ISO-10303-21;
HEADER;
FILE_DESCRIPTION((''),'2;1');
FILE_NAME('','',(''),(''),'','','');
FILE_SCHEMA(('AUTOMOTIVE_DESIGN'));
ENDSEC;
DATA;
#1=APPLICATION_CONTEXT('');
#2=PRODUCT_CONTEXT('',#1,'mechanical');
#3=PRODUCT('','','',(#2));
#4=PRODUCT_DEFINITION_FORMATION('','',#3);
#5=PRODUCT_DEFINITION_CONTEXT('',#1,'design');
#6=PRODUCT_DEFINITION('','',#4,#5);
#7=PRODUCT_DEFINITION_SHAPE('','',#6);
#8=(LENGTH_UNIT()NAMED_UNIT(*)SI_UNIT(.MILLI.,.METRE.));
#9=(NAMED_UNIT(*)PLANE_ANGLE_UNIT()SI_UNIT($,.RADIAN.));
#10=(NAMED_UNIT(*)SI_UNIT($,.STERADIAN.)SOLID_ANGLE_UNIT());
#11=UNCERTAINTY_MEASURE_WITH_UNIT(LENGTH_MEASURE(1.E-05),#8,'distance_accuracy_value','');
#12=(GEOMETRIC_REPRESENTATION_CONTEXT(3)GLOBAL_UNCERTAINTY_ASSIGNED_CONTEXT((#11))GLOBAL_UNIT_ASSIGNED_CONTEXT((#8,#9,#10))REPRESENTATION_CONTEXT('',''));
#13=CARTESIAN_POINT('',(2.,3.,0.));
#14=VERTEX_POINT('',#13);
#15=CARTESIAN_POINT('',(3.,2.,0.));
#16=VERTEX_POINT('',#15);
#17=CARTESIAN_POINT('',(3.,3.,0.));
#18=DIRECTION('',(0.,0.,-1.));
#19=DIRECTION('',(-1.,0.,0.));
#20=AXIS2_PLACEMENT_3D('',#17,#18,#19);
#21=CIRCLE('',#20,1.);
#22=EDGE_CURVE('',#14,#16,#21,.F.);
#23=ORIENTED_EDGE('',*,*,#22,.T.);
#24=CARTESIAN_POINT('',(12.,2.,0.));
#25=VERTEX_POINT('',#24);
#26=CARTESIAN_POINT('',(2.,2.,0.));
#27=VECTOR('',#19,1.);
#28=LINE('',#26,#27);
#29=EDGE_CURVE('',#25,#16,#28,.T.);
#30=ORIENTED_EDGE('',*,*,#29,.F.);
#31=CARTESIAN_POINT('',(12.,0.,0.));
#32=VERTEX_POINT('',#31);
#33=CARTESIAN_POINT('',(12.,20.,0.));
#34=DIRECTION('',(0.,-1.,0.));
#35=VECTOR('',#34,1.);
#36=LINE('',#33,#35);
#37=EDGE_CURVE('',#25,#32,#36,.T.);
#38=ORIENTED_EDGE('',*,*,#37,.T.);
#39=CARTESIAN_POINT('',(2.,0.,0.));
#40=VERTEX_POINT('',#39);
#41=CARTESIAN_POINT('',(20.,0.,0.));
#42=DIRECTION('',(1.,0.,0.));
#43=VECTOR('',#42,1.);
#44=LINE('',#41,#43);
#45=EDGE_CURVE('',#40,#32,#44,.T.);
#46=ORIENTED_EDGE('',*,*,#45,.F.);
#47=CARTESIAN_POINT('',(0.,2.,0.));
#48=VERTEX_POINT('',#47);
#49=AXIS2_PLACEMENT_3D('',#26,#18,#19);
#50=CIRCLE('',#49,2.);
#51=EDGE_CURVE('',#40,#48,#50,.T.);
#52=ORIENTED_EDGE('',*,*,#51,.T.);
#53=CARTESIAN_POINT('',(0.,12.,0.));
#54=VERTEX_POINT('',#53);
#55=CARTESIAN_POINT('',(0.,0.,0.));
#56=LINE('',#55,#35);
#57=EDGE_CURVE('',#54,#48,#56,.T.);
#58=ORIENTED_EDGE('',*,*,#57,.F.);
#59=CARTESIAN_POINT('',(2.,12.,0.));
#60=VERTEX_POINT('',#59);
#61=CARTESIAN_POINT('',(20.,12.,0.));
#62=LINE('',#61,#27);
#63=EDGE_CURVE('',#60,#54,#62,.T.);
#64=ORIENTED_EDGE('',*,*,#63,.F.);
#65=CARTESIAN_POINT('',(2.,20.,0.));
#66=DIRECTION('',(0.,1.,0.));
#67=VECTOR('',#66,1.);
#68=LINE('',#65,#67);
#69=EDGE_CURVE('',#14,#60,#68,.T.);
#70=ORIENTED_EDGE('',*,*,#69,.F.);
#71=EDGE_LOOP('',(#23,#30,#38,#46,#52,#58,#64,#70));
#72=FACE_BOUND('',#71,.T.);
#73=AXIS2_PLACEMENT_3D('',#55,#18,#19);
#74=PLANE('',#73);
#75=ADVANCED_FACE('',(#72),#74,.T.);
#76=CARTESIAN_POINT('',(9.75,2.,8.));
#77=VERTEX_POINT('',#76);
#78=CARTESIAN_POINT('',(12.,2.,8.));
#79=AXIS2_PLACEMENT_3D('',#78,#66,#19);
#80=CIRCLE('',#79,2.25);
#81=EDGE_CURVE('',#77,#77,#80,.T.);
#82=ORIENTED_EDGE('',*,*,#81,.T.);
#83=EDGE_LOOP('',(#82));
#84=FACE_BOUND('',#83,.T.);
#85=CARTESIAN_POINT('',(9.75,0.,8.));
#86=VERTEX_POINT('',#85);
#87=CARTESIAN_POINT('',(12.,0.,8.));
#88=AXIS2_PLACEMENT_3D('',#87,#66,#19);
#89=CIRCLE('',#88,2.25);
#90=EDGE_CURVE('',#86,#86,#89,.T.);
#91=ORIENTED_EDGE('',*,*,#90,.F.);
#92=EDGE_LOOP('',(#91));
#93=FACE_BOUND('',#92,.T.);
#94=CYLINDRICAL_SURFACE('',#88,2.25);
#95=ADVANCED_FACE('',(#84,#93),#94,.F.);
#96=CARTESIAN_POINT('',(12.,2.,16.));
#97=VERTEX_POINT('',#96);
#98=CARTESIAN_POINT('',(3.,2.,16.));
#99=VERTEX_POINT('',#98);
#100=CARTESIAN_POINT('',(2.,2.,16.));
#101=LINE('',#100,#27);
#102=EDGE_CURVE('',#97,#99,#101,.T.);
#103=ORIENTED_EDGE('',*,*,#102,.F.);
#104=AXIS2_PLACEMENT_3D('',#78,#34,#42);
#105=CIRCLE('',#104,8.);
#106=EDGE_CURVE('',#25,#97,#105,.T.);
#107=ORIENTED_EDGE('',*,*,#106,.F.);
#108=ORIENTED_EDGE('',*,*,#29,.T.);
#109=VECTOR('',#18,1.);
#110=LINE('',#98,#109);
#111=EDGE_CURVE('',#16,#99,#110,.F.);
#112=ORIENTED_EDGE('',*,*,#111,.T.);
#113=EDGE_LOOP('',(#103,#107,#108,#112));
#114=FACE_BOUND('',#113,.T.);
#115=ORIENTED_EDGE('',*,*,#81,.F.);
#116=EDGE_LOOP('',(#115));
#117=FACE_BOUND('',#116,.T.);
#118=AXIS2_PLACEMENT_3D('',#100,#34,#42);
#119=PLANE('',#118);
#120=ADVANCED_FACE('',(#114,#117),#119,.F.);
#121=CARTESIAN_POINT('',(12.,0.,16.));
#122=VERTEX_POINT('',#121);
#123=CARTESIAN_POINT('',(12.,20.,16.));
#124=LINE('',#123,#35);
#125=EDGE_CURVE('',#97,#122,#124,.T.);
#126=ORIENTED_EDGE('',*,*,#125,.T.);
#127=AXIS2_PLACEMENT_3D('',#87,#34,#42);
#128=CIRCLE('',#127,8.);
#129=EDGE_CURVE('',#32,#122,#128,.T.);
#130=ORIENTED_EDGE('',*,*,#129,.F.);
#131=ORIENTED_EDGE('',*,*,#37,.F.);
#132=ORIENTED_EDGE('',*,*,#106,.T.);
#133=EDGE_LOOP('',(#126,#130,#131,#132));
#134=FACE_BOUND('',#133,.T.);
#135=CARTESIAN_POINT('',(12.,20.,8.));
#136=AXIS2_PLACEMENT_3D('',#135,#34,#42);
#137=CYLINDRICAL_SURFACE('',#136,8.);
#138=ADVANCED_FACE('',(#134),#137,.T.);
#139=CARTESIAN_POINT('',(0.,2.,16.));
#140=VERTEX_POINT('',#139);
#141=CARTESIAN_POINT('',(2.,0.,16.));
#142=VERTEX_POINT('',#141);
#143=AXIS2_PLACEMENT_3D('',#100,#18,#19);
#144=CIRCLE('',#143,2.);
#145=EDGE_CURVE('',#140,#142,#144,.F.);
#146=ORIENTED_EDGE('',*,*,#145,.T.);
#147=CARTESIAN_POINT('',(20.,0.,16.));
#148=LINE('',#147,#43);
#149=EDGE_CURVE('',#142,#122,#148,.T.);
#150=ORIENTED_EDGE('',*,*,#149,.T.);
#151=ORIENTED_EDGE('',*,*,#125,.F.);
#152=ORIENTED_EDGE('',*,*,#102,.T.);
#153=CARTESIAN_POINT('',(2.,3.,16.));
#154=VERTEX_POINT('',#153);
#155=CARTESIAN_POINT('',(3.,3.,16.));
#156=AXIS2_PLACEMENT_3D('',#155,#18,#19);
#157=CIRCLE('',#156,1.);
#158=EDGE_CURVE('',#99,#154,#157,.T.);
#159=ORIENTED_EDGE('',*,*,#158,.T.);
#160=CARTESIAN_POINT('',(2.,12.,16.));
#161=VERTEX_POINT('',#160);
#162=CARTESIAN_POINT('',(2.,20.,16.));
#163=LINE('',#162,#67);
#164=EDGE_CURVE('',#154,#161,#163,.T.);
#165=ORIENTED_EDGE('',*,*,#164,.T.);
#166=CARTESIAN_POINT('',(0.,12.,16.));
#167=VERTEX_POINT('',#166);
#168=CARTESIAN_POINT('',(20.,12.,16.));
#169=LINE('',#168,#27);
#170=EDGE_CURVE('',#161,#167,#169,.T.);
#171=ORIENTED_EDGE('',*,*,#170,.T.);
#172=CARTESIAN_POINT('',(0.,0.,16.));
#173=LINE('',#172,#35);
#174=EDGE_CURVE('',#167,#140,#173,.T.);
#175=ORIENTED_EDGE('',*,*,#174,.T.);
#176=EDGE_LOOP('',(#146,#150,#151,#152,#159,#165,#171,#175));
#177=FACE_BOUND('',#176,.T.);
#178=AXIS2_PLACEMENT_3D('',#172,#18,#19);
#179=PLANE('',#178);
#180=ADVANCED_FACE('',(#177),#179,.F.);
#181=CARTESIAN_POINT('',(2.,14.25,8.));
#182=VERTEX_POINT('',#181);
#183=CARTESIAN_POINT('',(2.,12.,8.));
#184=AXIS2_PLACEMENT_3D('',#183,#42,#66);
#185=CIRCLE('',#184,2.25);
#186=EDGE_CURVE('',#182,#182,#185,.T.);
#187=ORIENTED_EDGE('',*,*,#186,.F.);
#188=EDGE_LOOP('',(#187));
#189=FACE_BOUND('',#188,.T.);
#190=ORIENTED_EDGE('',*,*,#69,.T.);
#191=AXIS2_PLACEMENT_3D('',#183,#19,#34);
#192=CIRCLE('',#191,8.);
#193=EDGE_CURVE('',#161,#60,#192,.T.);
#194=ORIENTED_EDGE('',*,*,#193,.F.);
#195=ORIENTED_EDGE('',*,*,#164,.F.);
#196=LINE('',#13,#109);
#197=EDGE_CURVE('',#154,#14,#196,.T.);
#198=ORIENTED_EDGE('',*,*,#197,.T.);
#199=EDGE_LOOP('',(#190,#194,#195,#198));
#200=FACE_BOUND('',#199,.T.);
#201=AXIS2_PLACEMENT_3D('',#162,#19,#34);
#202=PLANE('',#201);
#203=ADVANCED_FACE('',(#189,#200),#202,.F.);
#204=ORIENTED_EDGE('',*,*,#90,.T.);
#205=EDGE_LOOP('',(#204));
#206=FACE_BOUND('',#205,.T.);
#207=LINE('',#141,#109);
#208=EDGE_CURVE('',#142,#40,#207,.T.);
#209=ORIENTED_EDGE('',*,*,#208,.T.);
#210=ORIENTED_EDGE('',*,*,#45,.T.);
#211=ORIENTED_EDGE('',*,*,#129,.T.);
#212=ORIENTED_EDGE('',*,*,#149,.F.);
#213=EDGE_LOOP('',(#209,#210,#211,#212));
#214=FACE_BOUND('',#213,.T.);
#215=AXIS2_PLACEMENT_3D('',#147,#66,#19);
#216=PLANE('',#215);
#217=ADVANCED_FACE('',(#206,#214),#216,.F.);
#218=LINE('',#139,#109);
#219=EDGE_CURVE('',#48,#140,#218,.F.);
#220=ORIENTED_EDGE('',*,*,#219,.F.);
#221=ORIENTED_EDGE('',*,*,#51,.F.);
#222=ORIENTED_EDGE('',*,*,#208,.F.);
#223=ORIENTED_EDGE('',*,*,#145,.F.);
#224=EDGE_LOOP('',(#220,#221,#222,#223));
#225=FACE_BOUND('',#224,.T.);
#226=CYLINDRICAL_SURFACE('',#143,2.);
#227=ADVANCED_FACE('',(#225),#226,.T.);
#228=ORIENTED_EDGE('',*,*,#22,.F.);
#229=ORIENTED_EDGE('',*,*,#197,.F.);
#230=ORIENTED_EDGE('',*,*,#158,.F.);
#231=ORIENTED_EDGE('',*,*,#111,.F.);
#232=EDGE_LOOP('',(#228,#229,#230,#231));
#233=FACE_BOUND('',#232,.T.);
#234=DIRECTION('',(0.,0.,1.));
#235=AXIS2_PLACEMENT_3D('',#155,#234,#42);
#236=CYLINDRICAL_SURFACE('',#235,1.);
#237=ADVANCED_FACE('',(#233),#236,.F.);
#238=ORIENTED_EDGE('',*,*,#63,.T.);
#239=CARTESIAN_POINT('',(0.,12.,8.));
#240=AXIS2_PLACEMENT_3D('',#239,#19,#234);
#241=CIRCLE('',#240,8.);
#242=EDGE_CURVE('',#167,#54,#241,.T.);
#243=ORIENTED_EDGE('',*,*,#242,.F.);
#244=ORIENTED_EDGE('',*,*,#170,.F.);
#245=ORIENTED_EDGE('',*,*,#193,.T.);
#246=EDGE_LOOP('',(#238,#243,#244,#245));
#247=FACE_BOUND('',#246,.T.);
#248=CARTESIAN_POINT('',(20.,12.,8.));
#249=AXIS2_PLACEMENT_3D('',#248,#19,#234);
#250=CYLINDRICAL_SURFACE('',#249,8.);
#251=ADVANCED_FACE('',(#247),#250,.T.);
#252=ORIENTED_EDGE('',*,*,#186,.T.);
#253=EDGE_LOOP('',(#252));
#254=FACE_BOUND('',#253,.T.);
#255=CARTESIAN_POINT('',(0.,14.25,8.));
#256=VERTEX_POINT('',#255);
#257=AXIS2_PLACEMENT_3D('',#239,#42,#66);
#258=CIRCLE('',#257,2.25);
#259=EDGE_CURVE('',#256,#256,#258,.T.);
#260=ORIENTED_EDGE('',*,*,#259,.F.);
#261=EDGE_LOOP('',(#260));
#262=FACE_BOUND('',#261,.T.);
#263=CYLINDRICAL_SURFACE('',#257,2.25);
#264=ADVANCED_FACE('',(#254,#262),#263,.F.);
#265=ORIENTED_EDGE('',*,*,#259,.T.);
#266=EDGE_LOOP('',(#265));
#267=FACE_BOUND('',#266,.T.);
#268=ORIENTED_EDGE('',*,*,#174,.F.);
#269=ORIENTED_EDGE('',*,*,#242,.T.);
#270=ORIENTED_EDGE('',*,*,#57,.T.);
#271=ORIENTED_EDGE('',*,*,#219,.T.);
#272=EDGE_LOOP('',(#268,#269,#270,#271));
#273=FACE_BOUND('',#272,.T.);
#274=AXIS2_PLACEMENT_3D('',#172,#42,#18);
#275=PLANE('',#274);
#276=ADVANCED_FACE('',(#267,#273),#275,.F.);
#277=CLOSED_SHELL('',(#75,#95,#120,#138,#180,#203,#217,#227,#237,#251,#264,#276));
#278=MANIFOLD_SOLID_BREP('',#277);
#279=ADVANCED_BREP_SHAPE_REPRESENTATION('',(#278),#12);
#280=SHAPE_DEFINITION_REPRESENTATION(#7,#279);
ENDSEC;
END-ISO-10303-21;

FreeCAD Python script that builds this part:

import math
import FreeCAD as App
import Part
import Sketcher
from FreeCAD import Vector


def edges_at(feature, points):
    """Names of the edges that pass closest to the given points."""
    edges = feature.Shape.Edges
    near = lambda p: min(range(len(edges)), key=lambda i: edges[i].distToShape(Part.Vertex(*p))[0])
    return sorted({f"Edge{near(p) + 1}" for p in points})


def add_polygon(sketch, points):
    """Adds a closed chain of lines whose ends are joined by coincident constraints."""
    first, n = sketch.GeometryCount, len(points)
    for a, b in zip(points, points[1:] + points[:1]):
        sketch.addGeometry(Part.LineSegment(App.Vector(*a, 0), App.Vector(*b, 0)), False)
    for i in range(n):
        sketch.addConstraint(Sketcher.Constraint("Coincident", first + i, 2, first + (i + 1) % n, 1))

doc = App.newDocument("Part")
body = doc.addObject("PartDesign::Body", "Body")

# Sketch on XY plane
sketch1 = body.newObject("Sketcher::SketchObject", "Sketch")
sketch1.AttachmentSupport = (doc.getObject("XY_Plane"), [""])
sketch1.MapMode = "FlatFace"
add_polygon(sketch1, [(0, 20), (0, 0), (20, 0), (20, 2), (2, 2), (2, 20)])  # lines 0-5
sketch1.addConstraint(Sketcher.Constraint("Vertical", 0))
sketch1.addConstraint(Sketcher.Constraint("Horizontal", 1))
sketch1.addConstraint(Sketcher.Constraint("Vertical", 2))
sketch1.addConstraint(Sketcher.Constraint("Horizontal", 3))
sketch1.addConstraint(Sketcher.Constraint("Vertical", 4))
sketch1.addConstraint(Sketcher.Constraint("Horizontal", 5))
sketch1.addConstraint(Sketcher.Constraint("Coincident", 0, 2, -1, 1))
sketch1.addConstraint(Sketcher.Constraint("Equal", 1, 0))
sketch1.addConstraint(Sketcher.Constraint("Equal", 5, 2))
sketch1.addConstraint(Sketcher.Constraint("DistanceX", 1, 1, 1, 2, 20.0))
sketch1.addConstraint(Sketcher.Constraint("DistanceX", 3, 2, 3, 1, 18.0))
pad1 = body.newObject("PartDesign::Pad", "Pad")
pad1.Profile = sketch1
pad1.Length = 16

# Sketch on XZ plane
sketch2 = body.newObject("Sketcher::SketchObject", "Sketch001")
sketch2.AttachmentSupport = (doc.getObject("XZ_Plane"), [""])
sketch2.MapMode = "FlatFace"
sketch2.addGeometry(Part.LineSegment(Vector(20, 0, 0), Vector(20, 8, 0)), False)
sketch2.addGeometry(Part.ArcOfCircle(Part.Circle(Vector(12, 8, 0), Vector(0, 0, 1), 8), math.radians(-90), math.radians(0)), False)
sketch2.addGeometry(Part.LineSegment(Vector(12, 0, 0), Vector(20, 0, 0)), False)
sketch2.addGeometry(Part.LineSegment(Vector(20, 16, 0), Vector(12, 16, 0)), False)
sketch2.addGeometry(Part.ArcOfCircle(Part.Circle(Vector(12, 8, 0), Vector(0, 0, 1), 8), math.radians(0), math.radians(90)), False)
sketch2.addGeometry(Part.LineSegment(Vector(20, 8, 0), Vector(20, 16, 0)), False)
sketch2.addConstraint(Sketcher.Constraint("Tangent", 0, 2, 1, 2))
sketch2.addConstraint(Sketcher.Constraint("Tangent", 1, 1, 2, 1))
sketch2.addConstraint(Sketcher.Constraint("Coincident", 2, 2, 0, 1))
sketch2.addConstraint(Sketcher.Constraint("Tangent", 3, 2, 4, 2))
sketch2.addConstraint(Sketcher.Constraint("Tangent", 4, 1, 5, 1))
sketch2.addConstraint(Sketcher.Constraint("Coincident", 5, 2, 3, 1))
sketch2.addConstraint(Sketcher.Constraint("Vertical", 0))
sketch2.addConstraint(Sketcher.Constraint("Horizontal", 2))
sketch2.addConstraint(Sketcher.Constraint("Horizontal", 3))
sketch2.addConstraint(Sketcher.Constraint("Vertical", 5))
sketch2.addConstraint(Sketcher.Constraint("Coincident", 4, 3, 1, 3))
sketch2.addConstraint(Sketcher.Constraint("Equal", 1, 4))
sketch2.addConstraint(Sketcher.Constraint("PointOnObject", 1, 1, -1))
sketch2.addConstraint(Sketcher.Constraint("Radius", 1, 8.0))
sketch2.addConstraint(Sketcher.Constraint("DistanceX", -1, 1, 1, 3, 12.0))
pocket1 = body.newObject("PartDesign::Pocket", "Pocket")
pocket1.Profile = sketch2
pocket1.Type = "ThroughAll"

# Sketch on YZ plane
sketch3 = body.newObject("Sketcher::SketchObject", "Sketch002")
sketch3.AttachmentSupport = (doc.getObject("YZ_Plane"), [""])
sketch3.MapMode = "FlatFace"
sketch3.addGeometry(Part.LineSegment(Vector(20, 8, 0), Vector(20, 0, 0)), False)
sketch3.addGeometry(Part.LineSegment(Vector(20, 0, 0), Vector(12, 0, 0)), False)
sketch3.addGeometry(Part.ArcOfCircle(Part.Circle(Vector(12, 8, 0), Vector(0, 0, 1), 8), math.radians(-90), math.radians(0)), False)
sketch3.addGeometry(Part.LineSegment(Vector(20, 16, 0), Vector(20, 8, 0)), False)
sketch3.addGeometry(Part.ArcOfCircle(Part.Circle(Vector(12, 8, 0), Vector(0, 0, 1), 8), math.radians(0), math.radians(90)), False)
sketch3.addGeometry(Part.LineSegment(Vector(12, 16, 0), Vector(20, 16, 0)), False)
sketch3.addConstraint(Sketcher.Constraint("Coincident", 0, 2, 1, 1))
sketch3.addConstraint(Sketcher.Constraint("Tangent", 1, 2, 2, 1))
sketch3.addConstraint(Sketcher.Constraint("Tangent", 2, 2, 0, 1))
sketch3.addConstraint(Sketcher.Constraint("Tangent", 3, 2, 4, 1))
sketch3.addConstraint(Sketcher.Constraint("Tangent", 4, 2, 5, 1))
sketch3.addConstraint(Sketcher.Constraint("Coincident", 5, 2, 3, 1))
sketch3.addConstraint(Sketcher.Constraint("Vertical", 0))
sketch3.addConstraint(Sketcher.Constraint("Horizontal", 1))
sketch3.addConstraint(Sketcher.Constraint("Vertical", 3))
sketch3.addConstraint(Sketcher.Constraint("Horizontal", 5))
sketch3.addConstraint(Sketcher.Constraint("Coincident", 4, 3, 2, 3))
sketch3.addConstraint(Sketcher.Constraint("Equal", 2, 4))
sketch3.addConstraint(Sketcher.Constraint("PointOnObject", 0, 2, -1))
sketch3.addConstraint(Sketcher.Constraint("Radius", 2, 8.0))
sketch3.addConstraint(Sketcher.Constraint("DistanceX", -1, 1, 2, 3, 12.0))
pocket2 = body.newObject("PartDesign::Pocket", "Pocket001")
pocket2.Profile = sketch3
pocket2.Type = "ThroughAll"
pocket2.Reversed = True
doc.recompute()

fillet = body.newObject("PartDesign::Fillet", "Fillet")
fillet.Base = (pocket2, edges_at(pocket2, [(2, 2, 8)]))
fillet.Radius = 1
doc.recompute()

fillet2 = body.newObject("PartDesign::Fillet", "Fillet001")
fillet2.Base = (fillet, edges_at(fillet, [(0, 0, 8)]))
fillet2.Radius = 2

# Sketch on YZ plane
sketch4 = body.newObject("Sketcher::SketchObject", "Sketch003")
sketch4.AttachmentSupport = (doc.getObject("YZ_Plane"), [""])
sketch4.MapMode = "FlatFace"
sketch4.AttachmentOffset = App.Placement(Vector(0, 0, 2), App.Rotation())
sketch4.addGeometry(Part.Circle(Vector(12, 8, 0), Vector(0, 0, 1), 2.2), False)
sketch4.addConstraint(Sketcher.Constraint("Diameter", 0, 4.5))
sketch4.addConstraint(Sketcher.Constraint("DistanceX", -1, 1, 0, 3, 12.0))
sketch4.addConstraint(Sketcher.Constraint("DistanceY", -1, 1, 0, 3, 8.0))
pocket3 = body.newObject("PartDesign::Pocket", "Pocket002")
pocket3.Profile = sketch4
pocket3.Type = "ThroughAll"

# Sketch on XZ plane
sketch5 = body.newObject("Sketcher::SketchObject", "Sketch004")
sketch5.AttachmentSupport = (doc.getObject("XZ_Plane"), [""])
sketch5.MapMode = "FlatFace"
sketch5.AttachmentOffset = App.Placement(Vector(0, 0, -2), App.Rotation())
sketch5.addGeometry(Part.Circle(Vector(12, 8, 0), Vector(0, 0, 1), 2.2), False)
sketch5.addConstraint(Sketcher.Constraint("Diameter", 0, 4.5))
sketch5.addConstraint(Sketcher.Constraint("DistanceX", -1, 1, 0, 3, 12.0))
sketch5.addConstraint(Sketcher.Constraint("DistanceY", -1, 1, 0, 3, 8.0))
pocket4 = body.newObject("PartDesign::Pocket", "Pocket003")
pocket4.Profile = sketch5
pocket4.Type = "ThroughAll"
pocket4.Reversed = True

doc.recompute()
